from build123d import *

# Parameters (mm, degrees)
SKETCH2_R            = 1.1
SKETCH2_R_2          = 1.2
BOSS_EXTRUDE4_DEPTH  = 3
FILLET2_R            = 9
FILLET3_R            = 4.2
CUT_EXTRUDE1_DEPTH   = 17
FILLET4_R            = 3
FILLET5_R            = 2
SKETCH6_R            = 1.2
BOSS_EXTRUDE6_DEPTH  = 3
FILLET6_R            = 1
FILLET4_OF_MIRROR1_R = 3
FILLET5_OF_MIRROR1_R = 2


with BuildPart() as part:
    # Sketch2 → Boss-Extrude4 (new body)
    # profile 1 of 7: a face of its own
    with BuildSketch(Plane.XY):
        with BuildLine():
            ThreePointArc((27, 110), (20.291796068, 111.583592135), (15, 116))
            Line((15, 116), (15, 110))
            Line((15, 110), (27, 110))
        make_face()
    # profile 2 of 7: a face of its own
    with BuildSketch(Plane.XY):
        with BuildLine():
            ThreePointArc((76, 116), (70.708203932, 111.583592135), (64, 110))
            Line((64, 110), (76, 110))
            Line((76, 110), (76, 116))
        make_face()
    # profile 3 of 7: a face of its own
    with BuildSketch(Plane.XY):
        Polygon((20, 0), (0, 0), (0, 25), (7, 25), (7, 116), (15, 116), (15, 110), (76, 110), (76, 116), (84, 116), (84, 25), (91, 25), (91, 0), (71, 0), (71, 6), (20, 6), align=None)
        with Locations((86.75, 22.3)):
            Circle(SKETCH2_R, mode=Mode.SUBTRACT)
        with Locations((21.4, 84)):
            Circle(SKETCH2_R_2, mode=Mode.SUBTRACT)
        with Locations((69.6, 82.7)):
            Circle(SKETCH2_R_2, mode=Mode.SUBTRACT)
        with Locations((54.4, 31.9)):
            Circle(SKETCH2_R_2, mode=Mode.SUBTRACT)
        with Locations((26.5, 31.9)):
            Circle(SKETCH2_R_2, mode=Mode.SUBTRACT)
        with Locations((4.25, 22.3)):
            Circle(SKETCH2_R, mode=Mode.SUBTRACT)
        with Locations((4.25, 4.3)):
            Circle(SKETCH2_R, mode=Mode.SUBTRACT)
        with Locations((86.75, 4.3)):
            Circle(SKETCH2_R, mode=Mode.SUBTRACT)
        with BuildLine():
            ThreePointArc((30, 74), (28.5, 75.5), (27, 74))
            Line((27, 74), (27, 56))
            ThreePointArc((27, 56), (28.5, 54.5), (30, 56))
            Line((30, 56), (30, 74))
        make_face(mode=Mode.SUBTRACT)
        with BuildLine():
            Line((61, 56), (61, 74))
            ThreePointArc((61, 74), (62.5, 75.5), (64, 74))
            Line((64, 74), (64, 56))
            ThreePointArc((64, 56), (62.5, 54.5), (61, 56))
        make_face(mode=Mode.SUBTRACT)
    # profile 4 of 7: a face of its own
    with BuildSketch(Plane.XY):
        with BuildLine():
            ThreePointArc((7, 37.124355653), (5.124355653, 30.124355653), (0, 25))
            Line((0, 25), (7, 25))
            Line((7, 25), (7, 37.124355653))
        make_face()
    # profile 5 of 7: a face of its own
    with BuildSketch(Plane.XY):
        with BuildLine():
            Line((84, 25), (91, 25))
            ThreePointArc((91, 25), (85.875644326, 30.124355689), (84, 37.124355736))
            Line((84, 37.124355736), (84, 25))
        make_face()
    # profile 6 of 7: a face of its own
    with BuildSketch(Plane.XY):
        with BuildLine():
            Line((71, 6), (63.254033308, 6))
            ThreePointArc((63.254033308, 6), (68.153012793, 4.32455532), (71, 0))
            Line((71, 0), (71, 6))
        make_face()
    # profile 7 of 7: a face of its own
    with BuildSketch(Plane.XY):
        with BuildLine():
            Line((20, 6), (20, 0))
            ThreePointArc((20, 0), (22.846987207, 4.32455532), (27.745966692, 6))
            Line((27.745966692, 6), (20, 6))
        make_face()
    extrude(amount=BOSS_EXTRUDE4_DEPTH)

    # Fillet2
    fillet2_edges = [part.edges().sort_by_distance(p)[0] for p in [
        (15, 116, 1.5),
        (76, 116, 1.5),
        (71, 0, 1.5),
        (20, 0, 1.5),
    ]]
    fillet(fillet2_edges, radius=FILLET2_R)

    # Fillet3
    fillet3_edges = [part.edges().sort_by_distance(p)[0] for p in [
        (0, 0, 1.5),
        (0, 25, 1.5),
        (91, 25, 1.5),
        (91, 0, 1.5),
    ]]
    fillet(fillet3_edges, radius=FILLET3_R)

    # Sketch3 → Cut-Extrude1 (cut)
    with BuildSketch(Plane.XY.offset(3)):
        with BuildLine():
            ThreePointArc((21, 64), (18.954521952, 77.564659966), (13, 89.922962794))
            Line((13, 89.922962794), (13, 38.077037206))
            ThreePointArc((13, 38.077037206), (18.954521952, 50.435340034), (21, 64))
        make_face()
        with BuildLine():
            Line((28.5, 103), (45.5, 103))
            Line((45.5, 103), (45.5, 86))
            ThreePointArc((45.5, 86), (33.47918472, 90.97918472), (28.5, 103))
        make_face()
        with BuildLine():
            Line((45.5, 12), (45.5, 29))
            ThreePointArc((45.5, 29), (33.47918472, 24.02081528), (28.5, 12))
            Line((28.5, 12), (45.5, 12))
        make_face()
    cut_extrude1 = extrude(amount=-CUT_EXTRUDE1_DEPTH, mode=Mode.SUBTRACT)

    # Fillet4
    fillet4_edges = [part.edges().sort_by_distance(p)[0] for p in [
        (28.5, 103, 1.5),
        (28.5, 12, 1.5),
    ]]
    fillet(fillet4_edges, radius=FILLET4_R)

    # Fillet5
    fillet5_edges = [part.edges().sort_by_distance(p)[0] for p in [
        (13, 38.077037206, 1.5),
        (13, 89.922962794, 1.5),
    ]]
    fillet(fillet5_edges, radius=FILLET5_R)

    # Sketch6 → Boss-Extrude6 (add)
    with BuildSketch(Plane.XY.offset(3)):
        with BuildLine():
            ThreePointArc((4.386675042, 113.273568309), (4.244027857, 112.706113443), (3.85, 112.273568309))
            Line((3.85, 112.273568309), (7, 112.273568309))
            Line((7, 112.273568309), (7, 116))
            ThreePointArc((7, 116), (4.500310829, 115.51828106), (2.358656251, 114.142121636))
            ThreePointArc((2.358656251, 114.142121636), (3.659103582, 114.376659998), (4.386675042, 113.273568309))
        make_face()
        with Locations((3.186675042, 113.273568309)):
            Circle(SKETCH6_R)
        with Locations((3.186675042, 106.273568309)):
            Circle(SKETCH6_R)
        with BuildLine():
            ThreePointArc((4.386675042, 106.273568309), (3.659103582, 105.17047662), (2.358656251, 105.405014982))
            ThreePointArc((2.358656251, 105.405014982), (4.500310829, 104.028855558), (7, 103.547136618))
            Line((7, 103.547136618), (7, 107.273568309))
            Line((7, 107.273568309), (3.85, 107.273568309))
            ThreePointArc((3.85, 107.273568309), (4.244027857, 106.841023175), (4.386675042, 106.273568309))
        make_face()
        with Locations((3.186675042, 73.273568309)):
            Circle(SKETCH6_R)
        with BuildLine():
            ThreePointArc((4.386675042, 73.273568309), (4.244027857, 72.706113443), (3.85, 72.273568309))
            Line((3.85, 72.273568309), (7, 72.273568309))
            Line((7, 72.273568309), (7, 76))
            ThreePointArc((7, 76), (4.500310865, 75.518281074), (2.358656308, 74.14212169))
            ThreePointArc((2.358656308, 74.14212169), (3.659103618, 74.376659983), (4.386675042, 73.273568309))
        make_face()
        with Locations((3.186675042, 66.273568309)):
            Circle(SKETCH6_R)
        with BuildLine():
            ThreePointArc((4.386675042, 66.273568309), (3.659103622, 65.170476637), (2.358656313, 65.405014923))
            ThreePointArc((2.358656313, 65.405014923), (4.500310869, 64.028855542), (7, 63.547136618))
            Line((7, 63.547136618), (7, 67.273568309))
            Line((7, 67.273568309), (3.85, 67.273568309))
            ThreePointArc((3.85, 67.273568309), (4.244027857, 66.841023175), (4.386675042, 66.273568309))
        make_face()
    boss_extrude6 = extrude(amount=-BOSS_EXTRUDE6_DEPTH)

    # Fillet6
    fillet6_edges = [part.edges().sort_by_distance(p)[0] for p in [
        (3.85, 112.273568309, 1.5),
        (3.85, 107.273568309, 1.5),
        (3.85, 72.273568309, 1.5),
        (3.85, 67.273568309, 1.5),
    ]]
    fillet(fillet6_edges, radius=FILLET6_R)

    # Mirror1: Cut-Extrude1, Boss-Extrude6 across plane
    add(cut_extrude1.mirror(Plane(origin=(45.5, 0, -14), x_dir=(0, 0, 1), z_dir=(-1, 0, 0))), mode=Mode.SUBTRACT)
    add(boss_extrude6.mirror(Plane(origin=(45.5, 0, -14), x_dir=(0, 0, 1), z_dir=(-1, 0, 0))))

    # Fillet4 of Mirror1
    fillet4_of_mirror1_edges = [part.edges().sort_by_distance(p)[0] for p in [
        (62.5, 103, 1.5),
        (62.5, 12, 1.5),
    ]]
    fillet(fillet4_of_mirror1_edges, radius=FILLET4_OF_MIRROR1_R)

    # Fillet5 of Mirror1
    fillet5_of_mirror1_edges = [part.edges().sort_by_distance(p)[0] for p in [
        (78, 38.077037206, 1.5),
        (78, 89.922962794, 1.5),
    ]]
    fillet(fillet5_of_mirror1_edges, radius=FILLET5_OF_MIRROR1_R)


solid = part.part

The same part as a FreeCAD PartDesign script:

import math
import FreeCAD as App
import Part
import Sketcher

V = App.Vector
Q = App.Units.Quantity


def edges_at(feature, points):
    """Names of the edges that pass closest to the given points."""
    edges = feature.Shape.Edges
    near = lambda p: min(range(len(edges)), key=lambda i: edges[i].distToShape(Part.Vertex(*p))[0])
    return sorted({f"Edge{near(p) + 1}" for p in points})

doc = App.newDocument("Part")
body = doc.addObject("PartDesign::Body", "Body")

sketch1 = doc.addObject("Sketcher::SketchObject", "Sketch")
body.addObject(sketch1)
sketch1.AttachmentSupport = (doc.XY_Plane, [""])
sketch1.MapMode = "FlatFace"
sketch1.addGeometry([
    Part.ArcOfCircle(Part.Circle(V(27, 125, 0), V(0, 0, 1), 15), math.radians(-143), math.radians(-90)),
    Part.LineSegment(V(15, 116, 0), V(7, 116, 0)),
    Part.LineSegment(V(7, 116, 0), V(7, 37.1, 0)),
    Part.ArcOfCircle(Part.Circle(V(-7, 37.1, 0), V(0, 0, 1), 14), math.radians(-60), math.radians(0)),
    Part.LineSegment(V(0, 25, 0), V(0, 0, 0)),
    Part.LineSegment(V(0, 0, 0), V(20, 0, 0)),
    Part.ArcOfCircle(Part.Circle(V(27.7, -2, 0), V(0, 0, 1), 8), math.radians(90), math.radians(166)),
    Part.LineSegment(V(27.7, 6, 0), V(63.3, 6, 0)),
    Part.ArcOfCircle(Part.Circle(V(63.3, -2, 0), V(0, 0, 1), 8), math.radians(14), math.radians(90)),
    Part.LineSegment(V(71, 0, 0), V(91, 0, 0)),
    Part.LineSegment(V(91, 0, 0), V(91, 25, 0)),
    Part.ArcOfCircle(Part.Circle(V(98, 37.1, 0), V(0, 0, 1), 14), math.radians(180), math.radians(240)),
    Part.LineSegment(V(84, 37.1, 0), V(84, 116, 0)),
    Part.LineSegment(V(84, 116, 0), V(76, 116, 0)),
    Part.ArcOfCircle(Part.Circle(V(64, 125, 0), V(0, 0, 1), 15), math.radians(-90), math.radians(-37)),
    Part.LineSegment(V(64, 110, 0), V(27, 110, 0)),
    Part.Circle(V(21.4, 84, 0), V(0, 0, 1), 1.2),
    Part.LineSegment(V(27, 56, 0), V(27, 74, 0)),
    Part.ArcOfCircle(Part.Circle(V(28.5, 74, 0), V(0, 0, 1), 1.5), math.radians(0), math.radians(180)),
    Part.LineSegment(V(30, 74, 0), V(30, 56, 0)),
    Part.ArcOfCircle(Part.Circle(V(28.5, 56, 0), V(0, 0, 1), 1.5), math.radians(180), math.radians(360)),
    Part.Circle(V(86.8, 4.3, 0), V(0, 0, 1), 1.1),
    Part.Circle(V(86.8, 22.3, 0), V(0, 0, 1), 1.1),
    Part.Circle(V(54.4, 31.9, 0), V(0, 0, 1), 1.2),
    Part.Circle(V(4.2, 4.3, 0), V(0, 0, 1), 1.1),
    Part.Circle(V(4.2, 22.3, 0), V(0, 0, 1), 1.1),
    Part.Circle(V(26.5, 31.9, 0), V(0, 0, 1), 1.2),
    Part.Circle(V(69.6, 82.7, 0), V(0, 0, 1), 1.2),
    Part.LineSegment(V(61, 56, 0), V(61, 74, 0)),
    Part.ArcOfCircle(Part.Circle(V(62.5, 74, 0), V(0, 0, 1), 1.5), math.radians(0), math.radians(180)),
    Part.LineSegment(V(64, 74, 0), V(64, 56, 0)),
    Part.ArcOfCircle(Part.Circle(V(62.5, 56, 0), V(0, 0, 1), 1.5), math.radians(180), math.radians(360)),
], False)
sketch1.addConstraint([
    Sketcher.Constraint("Coincident", 0, 1, 1, 1),
    Sketcher.Constraint("Coincident", 1, 2, 2, 1),
    Sketcher.Constraint("Tangent", 2, 2, 3, 2),
    Sketcher.Constraint("Coincident", 3, 1, 4, 1),
    Sketcher.Constraint("Coincident", 4, 2, 5, 1),
    Sketcher.Constraint("Coincident", 5, 2, 6, 2),
    Sketcher.Constraint("Tangent", 6, 1, 7, 1),
    Sketcher.Constraint("Tangent", 7, 2, 8, 2),
    Sketcher.Constraint("Coincident", 8, 1, 9, 1),
    Sketcher.Constraint("Coincident", 9, 2, 10, 1),
    Sketcher.Constraint("Coincident", 10, 2, 11, 2),
    Sketcher.Constraint("Tangent", 11, 1, 12, 1),
    Sketcher.Constraint("Coincident", 12, 2, 13, 1),
    Sketcher.Constraint("Coincident", 13, 2, 14, 2),
    Sketcher.Constraint("Tangent", 14, 1, 15, 1),
    Sketcher.Constraint("Tangent", 15, 2, 0, 2),
    Sketcher.Constraint("Tangent", 17, 2, 18, 2),
    Sketcher.Constraint("Tangent", 18, 1, 19, 1),
    Sketcher.Constraint("Tangent", 19, 2, 20, 2),
    Sketcher.Constraint("Tangent", 20, 1, 17, 1),
    Sketcher.Constraint("Tangent", 28, 2, 29, 2),
    Sketcher.Constraint("Tangent", 29, 1, 30, 1),
    Sketcher.Constraint("Tangent", 30, 2, 31, 2),
    Sketcher.Constraint("Tangent", 31, 1, 28, 1),
    Sketcher.Constraint("Horizontal", 1),
    Sketcher.Constraint("Vertical", 2),
    Sketcher.Constraint("Vertical", 4),
    Sketcher.Constraint("Horizontal", 5),
    Sketcher.Constraint("Horizontal", 7),
    Sketcher.Constraint("Horizontal", 9),
    Sketcher.Constraint("Vertical", 10),
    Sketcher.Constraint("Vertical", 12),
    Sketcher.Constraint("Horizontal", 13),
    Sketcher.Constraint("Horizontal", 15),
    Sketcher.Constraint("Vertical", 17),
    Sketcher.Constraint("Vertical", 19),
    Sketcher.Constraint("Vertical", 28),
    Sketcher.Constraint("Vertical", 30),
    Sketcher.Constraint("Coincident", 4, 2, -1, 1),
    Sketcher.Constraint("Equal", 6, 8),
    Sketcher.Constraint("Equal", 3, 11),
    Sketcher.Constraint("Equal", 0, 14),
    Sketcher.Constraint("Equal", 21, 22),
    Sketcher.Constraint("Equal", 16, 23),
    Sketcher.Constraint("Equal", 22, 24),
    Sketcher.Constraint("Equal", 24, 25),
    Sketcher.Constraint("Equal", 23, 26),
    Sketcher.Constraint("Equal", 26, 27),
    Sketcher.Constraint("Equal", 20, 29),
    Sketcher.Constraint("PointOnObject", 8, 1, -1),
    Sketcher.Constraint("Horizontal", 3, 3, 11, 3),
    Sketcher.Constraint("Horizontal", 21, 3, 24, 3),
    Sketcher.Constraint("Horizontal", 22, 3, 25, 3),
    Sketcher.Constraint("Horizontal", 23, 3, 26, 3),
    Sketcher.Constraint("Horizontal", 18, 3, 29, 3),
    Sketcher.Constraint("Horizontal", 20, 3, 31, 3),
    Sketcher.Constraint("Horizontal", 3, 1, 10, 2),
    Sketcher.Constraint("Horizontal", 1, 2, 12, 2),
    Sketcher.Constraint("Vertical", 21, 3, 22, 3),
    Sketcher.Constraint("Vertical", 24, 3, 25, 3),
    Sketcher.Constraint("Vertical", 15, 2, 17, 2),
    Sketcher.Constraint("Vertical", 14, 1, 29, 1),
    Sketcher.Constraint("Equal", 5, 9),
    Sketcher.Constraint("Equal", 1, 13),
    Sketcher.Constraint("Radius", 0, Q("15 mm")),
    Sketcher.Constraint("Radius", 3, Q("14 mm")),
    Sketcher.Constraint("Radius", 6, Q("8 mm")),
    Sketcher.Constraint("Diameter", 16, Q("2.4 mm")),
    Sketcher.Constraint("Diameter", 21, Q("2.2 mm")),
    Sketcher.Constraint("Radius", 18, Q("1.5 mm")),
    Sketcher.Constraint("DistanceX", 1, 2, 1, 1, Q("8 mm")),
    Sketcher.Constraint("DistanceX", 5, 1, 5, 2, Q("20 mm")),
    Sketcher.Constraint("DistanceX", 15, 2, 15, 1, Q("37 mm")),
    Sketcher.Constraint("DistanceY", 4, 2, 4, 1, Q("25 mm")),
    Sketcher.Constraint("DistanceY", 17, 1, 17, 2, Q("18 mm")),
    Sketcher.Constraint("DistanceX", -1, 1, 0, 3, Q("27 mm")),
    Sketcher.Constraint("DistanceY", -1, 1, 0, 3, Q("125 mm")),
    Sketcher.Constraint("DistanceX", 3, 3, -1, 1, Q("7 mm")),
    Sketcher.Constraint("DistanceY", 6, 3, -1, 1, Q("2 mm")),
    Sketcher.Constraint("DistanceY", -1, 1, 16, 3, Q("84 mm")),
    Sketcher.Constraint("DistanceY", -1, 1, 18, 3, Q("74 mm")),
    Sketcher.Constraint("DistanceY", 21, 3, 22, 3, Q("18 mm")),
    Sketcher.Constraint("DistanceX", 26, 3, 20, 3, Q("2 mm")),
    Sketcher.Constraint("DistanceX", -1, 1, 16, 3, Q("21.4 mm")),
    Sketcher.Constraint("DistanceY", -1, 1, 21, 3, Q("4.3 mm")),
    Sketcher.Constraint("DistanceX", -1, 1, 23, 3, Q("54.4 mm")),
    Sketcher.Constraint("DistanceY", -1, 1, 23, 3, Q("31.9 mm")),
    Sketcher.Constraint("DistanceX", -1, 1, 27, 3, Q("69.6 mm")),
    Sketcher.Constraint("DistanceY", -1, 1, 27, 3, Q("82.7 mm")),
    Sketcher.Constraint("DistanceX", -1, 1, 21, 3, Q("86.75 mm")),
    Sketcher.Constraint("DistanceX", -1, 1, 24, 3, Q("4.25 mm")),
])
pad1 = doc.addObject("PartDesign::Pad", "Pad")
body.addObject(pad1)
pad1.Profile = sketch1
pad1.Length = 3
doc.recompute()

fillet = doc.addObject("PartDesign::Fillet", "Fillet")
body.addObject(fillet)
fillet.Base = (pad1, edges_at(pad1, [
    (15, 116, 1.5),
    (76, 116, 1.5),
    (71, 0, 1.5),
    (20, 0, 1.5),
]))
fillet.Radius = 9
doc.recompute()

fillet2 = doc.addObject("PartDesign::Fillet", "Fillet001")
body.addObject(fillet2)
fillet2.Base = (fillet, edges_at(fillet, [
    (0, 0, 1.5),
    (0, 25, 1.5),
    (91, 25, 1.5),
    (91, 0, 1.5),
]))
fillet2.Radius = 4.2

sketch2 = doc.addObject("Sketcher::SketchObject", "Sketch001")
body.addObject(sketch2)
sketch2.AttachmentSupport = (doc.XY_Plane, [""])
sketch2.MapMode = "FlatFace"
sketch2.AttachmentOffset = App.Placement(V(0, 0, 3), App.Rotation())
sketch2.addGeometry([
    Part.ArcOfCircle(Part.Circle(V(-25, 64, 0), V(0, 0, 1), 46), math.radians(0), math.radians(34)),
    Part.LineSegment(V(13, 90, 0), V(13, 38, 0)),
    Part.ArcOfCircle(Part.Circle(V(-25, 64, 0), V(0, 0, 1), 46), math.radians(-34), math.radians(0)),
    Part.LineSegment(V(46, 103, 0), V(28, 103, 0)),
    Part.ArcOfCircle(Part.Circle(V(46, 103, 0), V(0, 0, 1), 17), math.radians(-180), math.radians(-90)),
    Part.LineSegment(V(46, 86, 0), V(46, 103, 0)),
    Part.LineSegment(V(46, 12, 0), V(46, 29, 0)),
    Part.ArcOfCircle(Part.Circle(V(46, 12, 0), V(0, 0, 1), 17), math.radians(90), math.radians(180)),
    Part.LineSegment(V(28, 12, 0), V(46, 12, 0)),
], False)
sketch2.addConstraint([
    Sketcher.Constraint("Coincident", 0, 2, 1, 1),
    Sketcher.Constraint("Coincident", 1, 2, 2, 1),
    Sketcher.Constraint("Tangent", 2, 2, 0, 1),
    Sketcher.Constraint("Coincident", 3, 2, 4, 1),
    Sketcher.Constraint("Coincident", 4, 2, 5, 1),
    Sketcher.Constraint("Coincident", 5, 2, 3, 1),
    Sketcher.Constraint("Coincident", 6, 2, 7, 1),
    Sketcher.Constraint("Coincident", 7, 2, 8, 1),
    Sketcher.Constraint("Coincident", 8, 2, 6, 1),
    Sketcher.Constraint("Vertical", 1),
    Sketcher.Constraint("Horizontal", 3),
    Sketcher.Constraint("Vertical", 5),
    Sketcher.Constraint("Vertical", 6),
    Sketcher.Constraint("Horizontal", 8),
    Sketcher.Constraint("Coincident", 5, 2, 4, 3),
    Sketcher.Constraint("Coincident", 8, 2, 7, 3),
    Sketcher.Constraint("Equal", 0, 2),
    Sketcher.Constraint("Equal", 4, 7),
    Sketcher.Constraint("Horizontal", 0, 3, 2, 2),
    Sketcher.Constraint("Vertical", 4, 3, 7, 3),
    Sketcher.Constraint("Radius", 0, Q("46 mm")),
    Sketcher.Constraint("Radius", 4, Q("17 mm")),
    Sketcher.Constraint("DistanceX", 0, 3, -1, 1, Q("25 mm")),
    Sketcher.Constraint("DistanceY", -1, 1, 0, 3, Q("64 mm")),
    Sketcher.Constraint("DistanceY", -1, 1, 4, 3, Q("103 mm")),
    Sketcher.Constraint("DistanceY", -1, 1, 7, 3, Q("12 mm")),
    Sketcher.Constraint("DistanceX", -1, 1, 0, 2, Q("13 mm")),
    Sketcher.Constraint("DistanceX", -1, 1, 4, 3, Q("45.5 mm")),
])
pocket1 = doc.addObject("PartDesign::Pocket", "Pocket")
body.addObject(pocket1)
pocket1.Profile = sketch2
pocket1.Length = 17
doc.recompute()

fillet3 = doc.addObject("PartDesign::Fillet", "Fillet002")
body.addObject(fillet3)
fillet3.Base = (pocket1, edges_at(pocket1, [(28.5, 103, 1.5), (28.5, 12, 1.5)]))
fillet3.Radius = 3
doc.recompute()

fillet4 = doc.addObject("PartDesign::Fillet", "Fillet003")
body.addObject(fillet4)
fillet4.Base = (fillet3, edges_at(fillet3, [(13, 38.077, 1.5), (13, 89.923, 1.5)]))
fillet4.Radius = 2

sketch3 = doc.addObject("Sketcher::SketchObject", "Sketch002")
body.addObject(sketch3)
sketch3.AttachmentSupport = (doc.XY_Plane, [""])
sketch3.MapMode = "FlatFace"
sketch3.AttachmentOffset = App.Placement(V(0, 0, 3), App.Rotation())
sketch3.addGeometry([
    Part.LineSegment(V(3.9, 112.3, 0), V(7, 112.3, 0)),
    Part.LineSegment(V(7, 112.3, 0), V(7, 116, 0)),
    Part.ArcOfCircle(Part.Circle(V(7, 109.3, 0), V(0, 0, 1), 6.7), math.radians(90), math.radians(134)),
    Part.ArcOfCircle(Part.Circle(V(3.2, 113.3, 0), V(0, 0, 1), 1.2), math.radians(134), math.radians(304)),
    Part.ArcOfCircle(Part.Circle(V(3.2, 106.3, 0), V(0, 0, 1), 1.2), math.radians(56), math.radians(226)),
    Part.ArcOfCircle(Part.Circle(V(7, 110.3, 0), V(0, 0, 1), 6.7), math.radians(-134), math.radians(-90)),
    Part.LineSegment(V(7, 103.5, 0), V(7, 107.3, 0)),
    Part.LineSegment(V(7, 107.3, 0), V(3.9, 107.3, 0)),
    Part.ArcOfCircle(Part.Circle(V(3.2, 73.3, 0), V(0, 0, 1), 1.2), math.radians(134), math.radians(304)),
    Part.LineSegment(V(3.9, 72.3, 0), V(7, 72.3, 0)),
    Part.LineSegment(V(7, 72.3, 0), V(7, 76, 0)),
    Part.ArcOfCircle(Part.Circle(V(7, 69.3, 0), V(0, 0, 1), 6.7), math.radians(90), math.radians(134)),
    Part.ArcOfCircle(Part.Circle(V(3.2, 66.3, 0), V(0, 0, 1), 1.2), math.radians(56), math.radians(226)),
    Part.ArcOfCircle(Part.Circle(V(7, 70.3, 0), V(0, 0, 1), 6.7), math.radians(-134), math.radians(-90)),
    Part.LineSegment(V(7, 63.5, 0), V(7, 67.3, 0)),
    Part.LineSegment(V(7, 67.3, 0), V(3.9, 67.3, 0)),
], False)
sketch3.addConstraint([
    Sketcher.Constraint("Coincident", 0, 2, 1, 1),
    Sketcher.Constraint("Coincident", 1, 2, 2, 1),
    Sketcher.Constraint("Tangent", 2, 2, 3, 1),
    Sketcher.Constraint("Coincident", 3, 2, 0, 1),
    Sketcher.Constraint("Tangent", 4, 2, 5, 1),
    Sketcher.Constraint("Coincident", 5, 2, 6, 1),
    Sketcher.Constraint("Coincident", 6, 2, 7, 1),
    Sketcher.Constraint("Coincident", 7, 2, 4, 1),
    Sketcher.Constraint("Coincident", 8, 2, 9, 1),
    Sketcher.Constraint("Coincident", 9, 2, 10, 1),
    Sketcher.Constraint("Coincident", 10, 2, 11, 1),
    Sketcher.Constraint("Tangent", 11, 2, 8, 1),
    Sketcher.Constraint("Tangent", 12, 2, 13, 1),
    Sketcher.Constraint("Coincident", 13, 2, 14, 1),
    Sketcher.Constraint("Coincident", 14, 2, 15, 1),
    Sketcher.Constraint("Coincident", 15, 2, 12, 1),
    Sketcher.Constraint("Horizontal", 0),
    Sketcher.Constraint("Vertical", 1),
    Sketcher.Constraint("Vertical", 6),
    Sketcher.Constraint("Horizontal", 7),
    Sketcher.Constraint("Horizontal", 9),
    Sketcher.Constraint("Vertical", 10),
    Sketcher.Constraint("Vertical", 14),
    Sketcher.Constraint("Horizontal", 15),
    Sketcher.Constraint("Equal", 3, 4),
    Sketcher.Constraint("Equal", 2, 5),
    Sketcher.Constraint("Equal", 4, 8),
    Sketcher.Constraint("Equal", 5, 11),
    Sketcher.Constraint("Equal", 8, 12),
    Sketcher.Constraint("Equal", 11, 13),
    Sketcher.Constraint("Vertical", 3, 3, 4, 3),
    Sketcher.Constraint("Vertical", 2, 3, 5, 3),
    Sketcher.Constraint("Vertical", 4, 3, 8, 3),
    Sketcher.Constraint("Vertical", 5, 3, 11, 3),
    Sketcher.Constraint("Vertical", 8, 3, 12, 3),
    Sketcher.Constraint("Vertical", 11, 3, 13, 3),
    Sketcher.Constraint("Vertical", 13, 3, 0, 2),
    Sketcher.Constraint("Vertical", 1, 2, 5, 2),
    Sketcher.Constraint("Vertical", 3, 2, 7, 2),
    Sketcher.Constraint("Vertical", 7, 2, 8, 2),
    Sketcher.Constraint("Vertical", 6, 2, 9, 2),
    Sketcher.Constraint("Vertical", 10, 2, 13, 2),
    Sketcher.Constraint("Vertical", 8, 2, 15, 2),
    Sketcher.Constraint("Radius", 3, Q("1.2 mm")),
    Sketcher.Constraint("DistanceX", -1, 1, 2, 3, Q("7 mm")),
    Sketcher.Constraint("DistanceY", -1, 1, 1, 2, Q("116 mm")),
    Sketcher.Constraint("DistanceY", -1, 1, 10, 2, Q("76 mm")),
    Sketcher.Constraint("DistanceY", 2, 3, 3, 3, Q("4 mm")),
    Sketcher.Constraint("DistanceY", 4, 3, 2, 3, Q("3 mm")),
    Sketcher.Constraint("DistanceY", 12, 3, 11, 3, Q("3 mm")),
    Sketcher.Constraint("DistanceY", 5, 3, 0, 2, Q("2 mm")),
    Sketcher.Constraint("DistanceX", 0, 1, 0, 2, Q("3.15 mm")),
])
pad2 = doc.addObject("PartDesign::Pad", "Pad001")
body.addObject(pad2)
pad2.Profile = sketch3
pad2.Length = 3
pad2.Reversed = True
doc.recompute()

fillet5 = doc.addObject("PartDesign::Fillet", "Fillet004")
body.addObject(fillet5)
fillet5.Base = (pad2, edges_at(pad2, [
    (3.85, 112.274, 1.5),
    (3.85, 107.274, 1.5),
    (3.85, 72.274, 1.5),
    (3.85, 67.274, 1.5),
]))
fillet5.Radius = 1
doc.recompute()

datumplane = doc.addObject("PartDesign::Plane", "DatumPlane")
body.addObject(datumplane)
datumplane.AttachmentSupport = (doc.YZ_Plane, [""])
datumplane.MapMode = "FlatFace"
datumplane.AttachmentOffset = App.Placement(V(0, 0, 45.5), App.Rotation())
mirrored = doc.addObject("PartDesign::Mirrored", "Mirrored")
body.addObject(mirrored)
mirrored.Originals = [pocket1, pad2]
mirrored.MirrorPlane = (datumplane, [""])
body.Tip = mirrored
doc.recompute()

fillet6 = doc.addObject("PartDesign::Fillet", "Fillet005")
body.addObject(fillet6)
fillet6.Base = (mirrored, edges_at(mirrored, [(62.5, 103, 1.5), (62.5, 12, 1.5)]))
fillet6.Radius = 3
doc.recompute()

fillet7 = doc.addObject("PartDesign::Fillet", "Fillet006")
body.addObject(fillet7)
fillet7.Base = (fillet6, edges_at(fillet6, [(78, 38.077, 1.5), (78, 89.923, 1.5)]))
fillet7.Radius = 2

doc.recompute()
